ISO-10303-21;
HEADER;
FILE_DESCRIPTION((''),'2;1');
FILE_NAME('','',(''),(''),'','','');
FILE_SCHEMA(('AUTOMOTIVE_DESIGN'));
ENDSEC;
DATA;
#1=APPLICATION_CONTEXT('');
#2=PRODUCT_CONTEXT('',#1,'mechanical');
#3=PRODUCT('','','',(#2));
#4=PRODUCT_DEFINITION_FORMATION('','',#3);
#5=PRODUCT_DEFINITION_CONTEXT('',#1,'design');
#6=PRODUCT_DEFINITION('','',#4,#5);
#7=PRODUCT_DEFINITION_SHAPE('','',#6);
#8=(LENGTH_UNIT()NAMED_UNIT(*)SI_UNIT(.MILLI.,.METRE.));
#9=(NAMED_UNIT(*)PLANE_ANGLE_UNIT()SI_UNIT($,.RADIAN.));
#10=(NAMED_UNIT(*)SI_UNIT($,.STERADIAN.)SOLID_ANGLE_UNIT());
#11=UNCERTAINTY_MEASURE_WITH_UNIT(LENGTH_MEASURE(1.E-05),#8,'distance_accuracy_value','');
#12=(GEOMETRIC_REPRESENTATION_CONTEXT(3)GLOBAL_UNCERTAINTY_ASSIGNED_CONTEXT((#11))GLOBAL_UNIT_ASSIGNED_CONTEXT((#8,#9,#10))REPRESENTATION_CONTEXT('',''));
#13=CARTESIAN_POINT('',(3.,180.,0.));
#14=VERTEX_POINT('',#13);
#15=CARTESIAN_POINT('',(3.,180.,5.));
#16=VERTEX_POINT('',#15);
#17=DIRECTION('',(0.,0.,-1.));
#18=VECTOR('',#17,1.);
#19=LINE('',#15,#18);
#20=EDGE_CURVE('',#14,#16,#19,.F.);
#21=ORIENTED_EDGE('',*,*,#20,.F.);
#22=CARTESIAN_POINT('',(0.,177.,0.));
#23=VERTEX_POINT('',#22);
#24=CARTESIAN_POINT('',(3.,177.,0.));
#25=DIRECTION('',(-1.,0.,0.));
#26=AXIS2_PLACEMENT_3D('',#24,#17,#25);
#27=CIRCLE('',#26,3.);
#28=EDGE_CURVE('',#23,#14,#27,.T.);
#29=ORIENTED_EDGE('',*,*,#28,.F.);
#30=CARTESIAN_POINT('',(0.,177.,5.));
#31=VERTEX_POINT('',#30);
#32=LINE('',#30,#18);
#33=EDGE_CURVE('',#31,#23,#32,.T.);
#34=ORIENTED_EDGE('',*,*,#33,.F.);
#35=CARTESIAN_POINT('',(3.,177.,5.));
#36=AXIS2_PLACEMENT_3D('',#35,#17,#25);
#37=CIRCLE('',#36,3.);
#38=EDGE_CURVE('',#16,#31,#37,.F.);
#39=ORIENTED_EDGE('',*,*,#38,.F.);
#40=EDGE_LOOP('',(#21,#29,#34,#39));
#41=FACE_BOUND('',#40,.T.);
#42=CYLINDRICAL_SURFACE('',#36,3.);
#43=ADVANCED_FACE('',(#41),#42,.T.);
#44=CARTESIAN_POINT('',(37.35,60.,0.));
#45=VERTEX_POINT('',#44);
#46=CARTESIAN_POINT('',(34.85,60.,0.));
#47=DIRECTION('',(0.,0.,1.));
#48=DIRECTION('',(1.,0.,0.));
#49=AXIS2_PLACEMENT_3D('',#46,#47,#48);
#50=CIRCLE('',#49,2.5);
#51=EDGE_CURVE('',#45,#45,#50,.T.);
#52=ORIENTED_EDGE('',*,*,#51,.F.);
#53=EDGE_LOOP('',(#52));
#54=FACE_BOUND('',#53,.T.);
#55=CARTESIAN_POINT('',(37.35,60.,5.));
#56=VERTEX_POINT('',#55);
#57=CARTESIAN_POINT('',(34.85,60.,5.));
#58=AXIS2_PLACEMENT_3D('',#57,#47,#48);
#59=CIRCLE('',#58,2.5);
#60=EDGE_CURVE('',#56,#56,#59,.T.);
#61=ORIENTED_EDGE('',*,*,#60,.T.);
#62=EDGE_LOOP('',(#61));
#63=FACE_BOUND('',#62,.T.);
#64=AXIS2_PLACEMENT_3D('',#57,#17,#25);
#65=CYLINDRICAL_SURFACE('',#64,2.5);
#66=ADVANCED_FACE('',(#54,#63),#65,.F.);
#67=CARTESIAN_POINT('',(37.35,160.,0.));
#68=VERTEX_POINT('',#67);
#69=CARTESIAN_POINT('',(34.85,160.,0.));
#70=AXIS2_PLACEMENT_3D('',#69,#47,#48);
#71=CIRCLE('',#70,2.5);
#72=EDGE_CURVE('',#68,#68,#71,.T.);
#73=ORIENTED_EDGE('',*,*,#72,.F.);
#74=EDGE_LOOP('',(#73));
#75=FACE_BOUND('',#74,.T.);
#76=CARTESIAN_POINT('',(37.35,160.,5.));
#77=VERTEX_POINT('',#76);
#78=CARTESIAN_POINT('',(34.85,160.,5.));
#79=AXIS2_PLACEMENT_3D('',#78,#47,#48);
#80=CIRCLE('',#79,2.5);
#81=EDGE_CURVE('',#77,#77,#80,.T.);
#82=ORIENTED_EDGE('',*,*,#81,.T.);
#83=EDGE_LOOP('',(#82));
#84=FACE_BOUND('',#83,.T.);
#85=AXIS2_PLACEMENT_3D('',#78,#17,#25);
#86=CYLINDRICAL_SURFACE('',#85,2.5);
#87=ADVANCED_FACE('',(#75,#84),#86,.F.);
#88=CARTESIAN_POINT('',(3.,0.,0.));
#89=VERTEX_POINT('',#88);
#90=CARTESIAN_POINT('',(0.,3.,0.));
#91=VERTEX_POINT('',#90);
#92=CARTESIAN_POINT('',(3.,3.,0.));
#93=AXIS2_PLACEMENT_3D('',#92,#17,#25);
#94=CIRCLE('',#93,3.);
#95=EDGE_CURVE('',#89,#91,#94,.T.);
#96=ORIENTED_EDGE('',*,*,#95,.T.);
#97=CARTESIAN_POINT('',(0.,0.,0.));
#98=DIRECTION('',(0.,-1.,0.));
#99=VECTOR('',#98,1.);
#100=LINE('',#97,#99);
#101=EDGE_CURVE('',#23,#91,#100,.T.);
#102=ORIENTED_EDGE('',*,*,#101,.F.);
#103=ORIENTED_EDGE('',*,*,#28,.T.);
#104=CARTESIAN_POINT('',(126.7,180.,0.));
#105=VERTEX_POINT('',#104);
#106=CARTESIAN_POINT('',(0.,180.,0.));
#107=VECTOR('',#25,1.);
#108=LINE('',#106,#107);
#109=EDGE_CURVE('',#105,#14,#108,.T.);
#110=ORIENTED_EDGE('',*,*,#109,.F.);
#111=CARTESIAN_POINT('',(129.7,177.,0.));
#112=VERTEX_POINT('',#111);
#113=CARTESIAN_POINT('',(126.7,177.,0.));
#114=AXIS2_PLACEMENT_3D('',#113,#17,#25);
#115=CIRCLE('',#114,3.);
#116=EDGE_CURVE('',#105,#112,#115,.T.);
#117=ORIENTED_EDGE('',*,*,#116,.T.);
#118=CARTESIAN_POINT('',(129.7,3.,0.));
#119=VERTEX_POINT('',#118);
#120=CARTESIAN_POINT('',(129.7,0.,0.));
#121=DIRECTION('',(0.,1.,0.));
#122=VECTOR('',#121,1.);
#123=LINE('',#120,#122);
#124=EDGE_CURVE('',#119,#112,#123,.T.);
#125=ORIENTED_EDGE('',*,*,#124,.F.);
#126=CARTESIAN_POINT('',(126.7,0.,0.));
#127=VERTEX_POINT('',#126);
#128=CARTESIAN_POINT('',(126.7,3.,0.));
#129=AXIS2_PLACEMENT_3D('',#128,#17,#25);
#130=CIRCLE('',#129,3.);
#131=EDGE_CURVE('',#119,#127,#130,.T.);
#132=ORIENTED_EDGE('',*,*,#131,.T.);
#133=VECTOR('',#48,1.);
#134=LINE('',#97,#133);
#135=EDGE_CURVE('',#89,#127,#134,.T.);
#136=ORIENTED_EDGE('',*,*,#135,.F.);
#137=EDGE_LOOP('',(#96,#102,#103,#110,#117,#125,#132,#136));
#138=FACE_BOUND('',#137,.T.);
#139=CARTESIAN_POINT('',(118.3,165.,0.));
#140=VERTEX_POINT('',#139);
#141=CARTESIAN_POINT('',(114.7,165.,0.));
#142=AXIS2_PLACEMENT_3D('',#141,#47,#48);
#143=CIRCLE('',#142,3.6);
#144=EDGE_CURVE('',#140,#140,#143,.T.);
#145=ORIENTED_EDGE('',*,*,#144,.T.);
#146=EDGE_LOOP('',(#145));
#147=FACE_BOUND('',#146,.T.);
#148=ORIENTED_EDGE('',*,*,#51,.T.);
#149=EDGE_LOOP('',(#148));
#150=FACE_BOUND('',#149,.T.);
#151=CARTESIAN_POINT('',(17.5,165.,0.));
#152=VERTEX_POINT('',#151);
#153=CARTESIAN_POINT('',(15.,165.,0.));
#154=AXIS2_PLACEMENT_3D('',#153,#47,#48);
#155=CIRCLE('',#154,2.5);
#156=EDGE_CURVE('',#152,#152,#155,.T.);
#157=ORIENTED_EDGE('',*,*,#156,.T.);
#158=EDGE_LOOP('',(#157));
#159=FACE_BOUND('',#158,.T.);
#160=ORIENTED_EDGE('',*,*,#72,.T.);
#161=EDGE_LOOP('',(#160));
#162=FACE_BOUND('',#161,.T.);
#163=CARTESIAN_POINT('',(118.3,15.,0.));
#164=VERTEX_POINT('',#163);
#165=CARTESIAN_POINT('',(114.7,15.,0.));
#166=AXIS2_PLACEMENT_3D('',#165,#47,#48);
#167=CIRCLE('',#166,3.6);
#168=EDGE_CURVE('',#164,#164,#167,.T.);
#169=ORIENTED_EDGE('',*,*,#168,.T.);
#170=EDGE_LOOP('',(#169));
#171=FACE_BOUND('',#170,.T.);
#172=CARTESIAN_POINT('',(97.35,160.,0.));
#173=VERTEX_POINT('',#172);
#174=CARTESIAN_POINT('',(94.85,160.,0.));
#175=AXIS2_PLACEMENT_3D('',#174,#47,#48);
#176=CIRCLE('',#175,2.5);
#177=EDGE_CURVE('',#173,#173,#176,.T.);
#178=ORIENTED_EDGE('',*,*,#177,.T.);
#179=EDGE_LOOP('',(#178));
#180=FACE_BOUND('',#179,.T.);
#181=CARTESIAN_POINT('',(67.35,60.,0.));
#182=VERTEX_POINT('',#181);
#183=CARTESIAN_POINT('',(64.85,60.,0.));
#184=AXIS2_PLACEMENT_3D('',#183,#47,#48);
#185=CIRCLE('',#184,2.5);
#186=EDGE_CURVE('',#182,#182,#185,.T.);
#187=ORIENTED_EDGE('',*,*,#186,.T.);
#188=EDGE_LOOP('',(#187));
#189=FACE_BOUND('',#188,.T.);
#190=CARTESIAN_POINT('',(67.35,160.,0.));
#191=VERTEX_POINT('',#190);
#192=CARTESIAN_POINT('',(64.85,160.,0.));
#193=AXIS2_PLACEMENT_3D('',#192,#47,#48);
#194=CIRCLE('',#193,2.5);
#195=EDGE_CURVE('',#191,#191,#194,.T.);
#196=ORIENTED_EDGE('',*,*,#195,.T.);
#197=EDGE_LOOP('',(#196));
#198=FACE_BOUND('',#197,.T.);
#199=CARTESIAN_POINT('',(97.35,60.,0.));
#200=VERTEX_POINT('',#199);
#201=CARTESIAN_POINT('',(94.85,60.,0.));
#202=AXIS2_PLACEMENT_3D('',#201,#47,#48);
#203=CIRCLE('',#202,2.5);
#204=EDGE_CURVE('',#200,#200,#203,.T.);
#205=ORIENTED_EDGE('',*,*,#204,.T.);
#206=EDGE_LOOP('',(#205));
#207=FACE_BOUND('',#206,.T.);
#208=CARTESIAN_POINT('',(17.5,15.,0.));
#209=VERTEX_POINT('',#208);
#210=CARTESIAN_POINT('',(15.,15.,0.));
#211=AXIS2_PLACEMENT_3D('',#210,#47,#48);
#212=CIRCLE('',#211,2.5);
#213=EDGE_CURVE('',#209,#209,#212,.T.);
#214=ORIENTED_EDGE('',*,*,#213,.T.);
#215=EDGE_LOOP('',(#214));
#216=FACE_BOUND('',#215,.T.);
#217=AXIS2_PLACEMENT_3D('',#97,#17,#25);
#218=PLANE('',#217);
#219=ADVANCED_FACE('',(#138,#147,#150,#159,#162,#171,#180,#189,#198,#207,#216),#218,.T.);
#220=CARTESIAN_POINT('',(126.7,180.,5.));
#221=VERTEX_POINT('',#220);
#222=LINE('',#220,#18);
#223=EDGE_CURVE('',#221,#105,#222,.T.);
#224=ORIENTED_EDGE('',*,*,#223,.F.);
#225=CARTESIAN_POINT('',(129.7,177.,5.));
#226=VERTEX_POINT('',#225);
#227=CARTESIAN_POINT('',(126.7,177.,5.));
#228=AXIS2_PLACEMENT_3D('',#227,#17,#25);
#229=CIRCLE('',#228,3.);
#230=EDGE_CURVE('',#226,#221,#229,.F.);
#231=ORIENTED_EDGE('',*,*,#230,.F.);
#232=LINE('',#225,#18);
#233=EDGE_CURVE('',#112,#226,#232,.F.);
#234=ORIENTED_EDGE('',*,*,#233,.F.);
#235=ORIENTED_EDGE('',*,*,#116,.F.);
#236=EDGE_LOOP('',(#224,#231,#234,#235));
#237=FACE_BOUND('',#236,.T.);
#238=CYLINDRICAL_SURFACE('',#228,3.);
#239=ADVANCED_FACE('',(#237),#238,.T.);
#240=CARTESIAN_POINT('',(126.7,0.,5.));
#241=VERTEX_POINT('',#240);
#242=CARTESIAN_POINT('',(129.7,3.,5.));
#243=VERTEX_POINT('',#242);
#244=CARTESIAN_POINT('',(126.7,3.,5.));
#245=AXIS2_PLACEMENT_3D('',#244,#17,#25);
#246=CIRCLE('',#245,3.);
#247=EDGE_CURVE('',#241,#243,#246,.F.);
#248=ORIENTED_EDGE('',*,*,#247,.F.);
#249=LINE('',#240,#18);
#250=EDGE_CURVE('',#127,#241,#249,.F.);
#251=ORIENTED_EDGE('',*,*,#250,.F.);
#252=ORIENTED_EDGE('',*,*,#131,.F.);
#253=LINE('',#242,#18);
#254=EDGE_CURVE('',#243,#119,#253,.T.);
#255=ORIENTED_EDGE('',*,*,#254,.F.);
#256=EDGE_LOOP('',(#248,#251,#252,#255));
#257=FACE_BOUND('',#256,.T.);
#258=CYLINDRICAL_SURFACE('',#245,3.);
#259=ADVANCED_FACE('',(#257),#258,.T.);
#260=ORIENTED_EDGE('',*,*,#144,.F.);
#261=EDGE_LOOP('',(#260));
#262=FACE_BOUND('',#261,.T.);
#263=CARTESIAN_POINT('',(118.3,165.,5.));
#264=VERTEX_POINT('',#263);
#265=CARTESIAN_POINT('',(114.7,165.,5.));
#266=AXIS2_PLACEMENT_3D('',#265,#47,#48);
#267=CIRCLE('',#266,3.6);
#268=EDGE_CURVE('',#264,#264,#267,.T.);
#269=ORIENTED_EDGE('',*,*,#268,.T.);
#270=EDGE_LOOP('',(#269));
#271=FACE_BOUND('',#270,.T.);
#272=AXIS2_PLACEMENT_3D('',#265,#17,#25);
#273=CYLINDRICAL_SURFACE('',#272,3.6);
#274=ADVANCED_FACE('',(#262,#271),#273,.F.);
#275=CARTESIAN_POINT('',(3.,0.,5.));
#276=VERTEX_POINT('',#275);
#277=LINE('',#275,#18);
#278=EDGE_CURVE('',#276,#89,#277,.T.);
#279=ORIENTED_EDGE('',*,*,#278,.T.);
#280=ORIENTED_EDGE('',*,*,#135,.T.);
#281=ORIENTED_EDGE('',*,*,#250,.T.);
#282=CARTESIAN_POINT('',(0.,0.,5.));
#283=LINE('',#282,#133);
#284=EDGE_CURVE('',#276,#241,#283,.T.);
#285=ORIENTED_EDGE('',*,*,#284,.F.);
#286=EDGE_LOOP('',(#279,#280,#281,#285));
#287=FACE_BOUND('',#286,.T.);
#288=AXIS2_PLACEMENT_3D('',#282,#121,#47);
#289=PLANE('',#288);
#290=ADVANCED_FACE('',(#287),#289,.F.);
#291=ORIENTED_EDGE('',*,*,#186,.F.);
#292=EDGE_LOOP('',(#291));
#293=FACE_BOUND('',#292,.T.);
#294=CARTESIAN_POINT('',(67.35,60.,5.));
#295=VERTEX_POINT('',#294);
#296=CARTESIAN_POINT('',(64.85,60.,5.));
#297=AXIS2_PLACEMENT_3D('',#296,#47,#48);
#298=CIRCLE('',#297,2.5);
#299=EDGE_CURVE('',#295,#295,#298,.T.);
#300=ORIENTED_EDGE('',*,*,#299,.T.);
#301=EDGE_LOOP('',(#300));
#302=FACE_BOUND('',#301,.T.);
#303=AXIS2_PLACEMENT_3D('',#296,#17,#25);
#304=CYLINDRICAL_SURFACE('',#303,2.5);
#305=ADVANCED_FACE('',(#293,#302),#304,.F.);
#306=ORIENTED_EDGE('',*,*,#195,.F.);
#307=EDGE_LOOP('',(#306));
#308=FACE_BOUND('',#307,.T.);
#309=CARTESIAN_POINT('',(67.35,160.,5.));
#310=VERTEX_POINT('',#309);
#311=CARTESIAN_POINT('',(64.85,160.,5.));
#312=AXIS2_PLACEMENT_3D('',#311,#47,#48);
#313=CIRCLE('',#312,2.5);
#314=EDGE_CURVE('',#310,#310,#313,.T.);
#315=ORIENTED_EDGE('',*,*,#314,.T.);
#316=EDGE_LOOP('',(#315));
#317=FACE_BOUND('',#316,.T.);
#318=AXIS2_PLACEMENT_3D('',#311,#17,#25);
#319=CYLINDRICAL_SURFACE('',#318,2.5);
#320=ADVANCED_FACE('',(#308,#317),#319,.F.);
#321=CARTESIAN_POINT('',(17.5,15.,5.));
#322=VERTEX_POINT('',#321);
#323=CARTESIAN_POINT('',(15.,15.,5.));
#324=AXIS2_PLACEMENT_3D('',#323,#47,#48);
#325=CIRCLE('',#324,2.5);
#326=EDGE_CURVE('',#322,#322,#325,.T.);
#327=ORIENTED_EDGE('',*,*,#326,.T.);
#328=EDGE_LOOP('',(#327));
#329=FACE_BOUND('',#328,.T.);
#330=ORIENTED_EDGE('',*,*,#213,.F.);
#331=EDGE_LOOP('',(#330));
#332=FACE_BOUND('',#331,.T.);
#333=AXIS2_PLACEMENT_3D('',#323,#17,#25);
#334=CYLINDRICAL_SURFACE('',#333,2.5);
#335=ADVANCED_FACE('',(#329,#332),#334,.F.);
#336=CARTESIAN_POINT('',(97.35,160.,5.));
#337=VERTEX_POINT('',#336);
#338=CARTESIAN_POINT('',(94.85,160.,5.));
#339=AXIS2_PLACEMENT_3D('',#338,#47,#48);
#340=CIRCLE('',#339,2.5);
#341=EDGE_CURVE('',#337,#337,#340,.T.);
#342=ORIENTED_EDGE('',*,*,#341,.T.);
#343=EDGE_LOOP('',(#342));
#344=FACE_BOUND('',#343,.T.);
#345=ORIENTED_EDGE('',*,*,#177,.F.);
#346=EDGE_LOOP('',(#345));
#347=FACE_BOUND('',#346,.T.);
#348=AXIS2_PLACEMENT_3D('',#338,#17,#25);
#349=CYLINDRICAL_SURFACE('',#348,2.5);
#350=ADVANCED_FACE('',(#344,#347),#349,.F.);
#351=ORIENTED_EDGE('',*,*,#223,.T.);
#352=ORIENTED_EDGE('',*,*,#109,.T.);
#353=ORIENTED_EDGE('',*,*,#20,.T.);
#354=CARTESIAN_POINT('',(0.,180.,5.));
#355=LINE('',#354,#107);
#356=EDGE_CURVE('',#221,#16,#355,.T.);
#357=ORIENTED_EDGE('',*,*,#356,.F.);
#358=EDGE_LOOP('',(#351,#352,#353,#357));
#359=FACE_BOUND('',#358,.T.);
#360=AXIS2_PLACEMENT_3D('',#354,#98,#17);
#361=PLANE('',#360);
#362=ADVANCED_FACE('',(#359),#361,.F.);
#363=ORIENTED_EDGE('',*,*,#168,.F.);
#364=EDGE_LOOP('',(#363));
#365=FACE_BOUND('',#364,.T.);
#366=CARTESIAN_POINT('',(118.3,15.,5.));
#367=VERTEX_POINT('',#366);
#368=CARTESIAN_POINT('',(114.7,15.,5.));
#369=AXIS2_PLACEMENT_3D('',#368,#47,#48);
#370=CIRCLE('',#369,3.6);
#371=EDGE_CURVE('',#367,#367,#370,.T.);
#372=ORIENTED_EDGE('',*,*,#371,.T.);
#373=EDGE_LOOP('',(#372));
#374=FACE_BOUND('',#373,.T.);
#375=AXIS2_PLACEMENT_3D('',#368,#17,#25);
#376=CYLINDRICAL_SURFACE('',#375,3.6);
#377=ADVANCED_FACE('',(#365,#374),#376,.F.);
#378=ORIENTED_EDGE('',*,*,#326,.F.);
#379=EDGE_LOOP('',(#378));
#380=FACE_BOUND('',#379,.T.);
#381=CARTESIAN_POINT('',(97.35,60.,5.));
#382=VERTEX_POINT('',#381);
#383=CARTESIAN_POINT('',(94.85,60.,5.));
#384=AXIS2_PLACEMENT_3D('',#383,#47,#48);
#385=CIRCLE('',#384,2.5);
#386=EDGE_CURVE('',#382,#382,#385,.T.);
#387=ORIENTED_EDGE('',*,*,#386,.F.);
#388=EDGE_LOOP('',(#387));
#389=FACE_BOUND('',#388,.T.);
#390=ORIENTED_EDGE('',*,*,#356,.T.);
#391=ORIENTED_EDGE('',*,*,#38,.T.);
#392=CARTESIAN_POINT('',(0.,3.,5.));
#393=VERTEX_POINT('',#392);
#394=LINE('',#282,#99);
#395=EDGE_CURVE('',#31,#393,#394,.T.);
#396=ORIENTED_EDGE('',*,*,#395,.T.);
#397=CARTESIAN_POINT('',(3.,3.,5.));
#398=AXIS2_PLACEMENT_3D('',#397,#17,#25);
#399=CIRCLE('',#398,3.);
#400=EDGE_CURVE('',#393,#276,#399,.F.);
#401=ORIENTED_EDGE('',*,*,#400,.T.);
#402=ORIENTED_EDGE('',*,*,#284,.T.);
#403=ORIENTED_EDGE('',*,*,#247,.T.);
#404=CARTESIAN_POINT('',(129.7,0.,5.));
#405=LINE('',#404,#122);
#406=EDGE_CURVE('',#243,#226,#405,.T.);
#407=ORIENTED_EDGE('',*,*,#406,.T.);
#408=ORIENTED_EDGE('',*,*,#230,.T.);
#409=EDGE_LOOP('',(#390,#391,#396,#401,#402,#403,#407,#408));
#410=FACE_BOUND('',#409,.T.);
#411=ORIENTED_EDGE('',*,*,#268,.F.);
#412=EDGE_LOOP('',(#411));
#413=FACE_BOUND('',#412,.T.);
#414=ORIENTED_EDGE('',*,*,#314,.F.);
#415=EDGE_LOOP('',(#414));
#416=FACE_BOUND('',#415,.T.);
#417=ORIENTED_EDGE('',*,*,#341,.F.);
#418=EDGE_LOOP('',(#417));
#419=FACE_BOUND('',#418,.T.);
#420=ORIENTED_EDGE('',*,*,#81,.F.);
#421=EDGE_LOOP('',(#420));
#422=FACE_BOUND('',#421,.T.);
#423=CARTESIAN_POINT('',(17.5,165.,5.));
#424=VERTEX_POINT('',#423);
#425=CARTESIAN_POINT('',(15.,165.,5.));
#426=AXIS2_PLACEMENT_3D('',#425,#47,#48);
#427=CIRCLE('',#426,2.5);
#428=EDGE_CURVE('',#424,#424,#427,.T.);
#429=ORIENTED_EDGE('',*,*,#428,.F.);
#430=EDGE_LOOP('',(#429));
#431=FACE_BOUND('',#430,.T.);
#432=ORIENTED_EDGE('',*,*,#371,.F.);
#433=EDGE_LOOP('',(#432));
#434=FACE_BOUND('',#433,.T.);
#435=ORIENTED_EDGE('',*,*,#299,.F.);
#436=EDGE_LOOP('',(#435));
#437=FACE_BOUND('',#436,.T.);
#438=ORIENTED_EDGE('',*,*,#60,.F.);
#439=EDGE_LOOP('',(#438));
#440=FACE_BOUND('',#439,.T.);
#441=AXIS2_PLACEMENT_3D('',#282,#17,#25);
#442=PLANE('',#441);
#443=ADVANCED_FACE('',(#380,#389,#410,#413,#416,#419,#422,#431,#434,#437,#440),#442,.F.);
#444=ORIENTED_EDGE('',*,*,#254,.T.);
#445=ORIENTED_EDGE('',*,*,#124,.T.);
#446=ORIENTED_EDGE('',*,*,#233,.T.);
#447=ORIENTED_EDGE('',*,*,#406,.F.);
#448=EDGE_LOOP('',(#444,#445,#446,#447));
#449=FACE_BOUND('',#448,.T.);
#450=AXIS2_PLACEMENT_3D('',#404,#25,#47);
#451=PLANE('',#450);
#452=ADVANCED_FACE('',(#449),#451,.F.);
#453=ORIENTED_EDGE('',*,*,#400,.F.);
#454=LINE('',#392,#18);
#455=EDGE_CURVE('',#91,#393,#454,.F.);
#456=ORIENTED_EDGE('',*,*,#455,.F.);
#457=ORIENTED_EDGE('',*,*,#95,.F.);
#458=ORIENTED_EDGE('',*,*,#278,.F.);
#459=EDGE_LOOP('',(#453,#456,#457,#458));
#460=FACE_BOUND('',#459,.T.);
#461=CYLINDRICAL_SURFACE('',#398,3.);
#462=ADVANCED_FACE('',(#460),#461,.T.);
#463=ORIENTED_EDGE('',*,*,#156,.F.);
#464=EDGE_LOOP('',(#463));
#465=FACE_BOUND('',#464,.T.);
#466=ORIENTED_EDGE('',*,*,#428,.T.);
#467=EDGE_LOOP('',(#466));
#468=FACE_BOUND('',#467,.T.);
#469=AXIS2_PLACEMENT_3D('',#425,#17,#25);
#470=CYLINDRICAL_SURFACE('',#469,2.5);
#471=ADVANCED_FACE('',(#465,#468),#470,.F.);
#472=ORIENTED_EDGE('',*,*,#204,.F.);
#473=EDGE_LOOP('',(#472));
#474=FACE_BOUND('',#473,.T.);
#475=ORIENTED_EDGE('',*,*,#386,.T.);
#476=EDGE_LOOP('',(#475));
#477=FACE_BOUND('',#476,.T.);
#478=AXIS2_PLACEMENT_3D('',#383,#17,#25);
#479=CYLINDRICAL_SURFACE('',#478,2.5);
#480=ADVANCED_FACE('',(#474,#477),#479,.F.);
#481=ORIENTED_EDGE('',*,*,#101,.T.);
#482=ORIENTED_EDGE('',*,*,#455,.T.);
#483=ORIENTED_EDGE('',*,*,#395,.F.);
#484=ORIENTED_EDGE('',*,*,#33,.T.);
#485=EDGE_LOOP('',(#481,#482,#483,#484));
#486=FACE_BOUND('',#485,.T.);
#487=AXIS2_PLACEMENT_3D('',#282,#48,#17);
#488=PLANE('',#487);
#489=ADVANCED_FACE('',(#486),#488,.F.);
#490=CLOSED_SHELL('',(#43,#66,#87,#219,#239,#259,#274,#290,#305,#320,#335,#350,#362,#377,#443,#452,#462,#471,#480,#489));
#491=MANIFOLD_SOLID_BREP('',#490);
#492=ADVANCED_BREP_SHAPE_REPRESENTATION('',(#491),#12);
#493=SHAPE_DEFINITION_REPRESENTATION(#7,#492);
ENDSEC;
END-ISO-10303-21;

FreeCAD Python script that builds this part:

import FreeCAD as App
import Part
import Sketcher

V = App.Vector
Q = App.Units.Quantity


def edges_at(feature, points):
    """Names of the edges that pass closest to the given points."""
    edges = feature.Shape.Edges
    near = lambda p: min(range(len(edges)), key=lambda i: edges[i].distToShape(Part.Vertex(*p))[0])
    return sorted({f"Edge{near(p) + 1}" for p in points})

doc = App.newDocument("Part")
body = doc.addObject("PartDesign::Body", "Body")

sketch1 = body.newObject("Sketcher::SketchObject", "Sketch")
sketch1.AttachmentSupport = (doc.getObject("XY_Plane"), [""])
sketch1.MapMode = "FlatFace"
sketch1.addGeometry([
    Part.LineSegment(V(0, 180, 0), V(0, 0, 0)),
    Part.LineSegment(V(0, 0, 0), V(129.7, 0, 0)),
    Part.LineSegment(V(129.7, 0, 0), V(129.7, 180, 0)),
    Part.LineSegment(V(129.7, 180, 0), V(0, 180, 0)),
    Part.Circle(V(15, 15, 0), V(0, 0, 1), 2.5),
    Part.Circle(V(34.85, 60, 0), V(0, 0, 1), 2.5),
    Part.Circle(V(64.85, 60, 0), V(0, 0, 1), 2.5),
    Part.Circle(V(114.7, 15, 0), V(0, 0, 1), 3.6),
    Part.Circle(V(94.85, 60, 0), V(0, 0, 1), 2.5),
    Part.Circle(V(15, 165, 0), V(0, 0, 1), 2.5),
    Part.Circle(V(34.85, 160, 0), V(0, 0, 1), 2.5),
    Part.Circle(V(64.85, 160, 0), V(0, 0, 1), 2.5),
    Part.Circle(V(94.85, 160, 0), V(0, 0, 1), 2.5),
    Part.Circle(V(114.7, 165, 0), V(0, 0, 1), 3.6),
], False)
sketch1.addConstraint([
    Sketcher.Constraint("Coincident", 0, 2, 1, 1),
    Sketcher.Constraint("Coincident", 1, 2, 2, 1),
    Sketcher.Constraint("Coincident", 2, 2, 3, 1),
    Sketcher.Constraint("Coincident", 3, 2, 0, 1),
    Sketcher.Constraint("Vertical", 0),
    Sketcher.Constraint("Horizontal", 1),
    Sketcher.Constraint("Vertical", 2),
    Sketcher.Constraint("Horizontal", 3),
    Sketcher.Constraint("Coincident", 0, 2, -1, 1),
    Sketcher.Constraint("Equal", 4, 5),
    Sketcher.Constraint("Equal", 5, 6),
    Sketcher.Constraint("Equal", 6, 8),
    Sketcher.Constraint("Equal", 8, 9),
    Sketcher.Constraint("Equal", 9, 10),
    Sketcher.Constraint("Equal", 10, 11),
    Sketcher.Constraint("Equal", 11, 12),
    Sketcher.Constraint("Equal", 7, 13),
    Sketcher.Constraint("Horizontal", 5, 3, 6, 3),
    Sketcher.Constraint("Horizontal", 4, 3, 7, 3),
    Sketcher.Constraint("Horizontal", 6, 3, 8, 3),
    Sketcher.Constraint("Horizontal", 10, 3, 11, 3),
    Sketcher.Constraint("Horizontal", 11, 3, 12, 3),
    Sketcher.Constraint("Horizontal", 9, 3, 13, 3),
    Sketcher.Constraint("Vertical", 4, 3, 9, 3),
    Sketcher.Constraint("Vertical", 5, 3, 10, 3),
    Sketcher.Constraint("Vertical", 6, 3, 11, 3),
    Sketcher.Constraint("Vertical", 8, 3, 12, 3),
    Sketcher.Constraint("Vertical", 7, 3, 13, 3),
    Sketcher.Constraint("Diameter", 4, Q("5 mm")),
    Sketcher.Constraint("Diameter", 7, Q("7.2 mm")),
    Sketcher.Constraint("DistanceY", 0, 2, 0, 1, Q("180 mm")),
    Sketcher.Constraint("DistanceX", 1, 1, 1, 2, Q("129.7 mm")),
    Sketcher.Constraint("DistanceX", -1, 1, 4, 3, Q("15 mm")),
    Sketcher.Constraint("DistanceY", -1, 1, 4, 3, Q("15 mm")),
    Sketcher.Constraint("DistanceY", -1, 1, 5, 3, Q("60 mm")),
    Sketcher.Constraint("DistanceY", -1, 1, 9, 3, Q("165 mm")),
    Sketcher.Constraint("DistanceY", -1, 1, 10, 3, Q("160 mm")),
    Sketcher.Constraint("DistanceX", 5, 3, 6, 3, Q("30 mm")),
    Sketcher.Constraint("DistanceX", 6, 3, 8, 3, Q("30 mm")),
    Sketcher.Constraint("DistanceX", 7, 3, 1, 2, Q("15 mm")),
    Sketcher.Constraint("DistanceX", -1, 1, 5, 3, Q("34.85 mm")),
])
pad1 = body.newObject("PartDesign::Pad", "Pad")
pad1.Profile = sketch1
pad1.Length = 5
doc.recompute()

fillet = body.newObject("PartDesign::Fillet", "Fillet")
fillet.Base = (pad1, edges_at(pad1, [
    (0, 180, 2.5),
    (129.7, 180, 2.5),
    (129.7, 0, 2.5),
    (0, 0, 2.5),
]))
fillet.Radius = 3

doc.recompute()
